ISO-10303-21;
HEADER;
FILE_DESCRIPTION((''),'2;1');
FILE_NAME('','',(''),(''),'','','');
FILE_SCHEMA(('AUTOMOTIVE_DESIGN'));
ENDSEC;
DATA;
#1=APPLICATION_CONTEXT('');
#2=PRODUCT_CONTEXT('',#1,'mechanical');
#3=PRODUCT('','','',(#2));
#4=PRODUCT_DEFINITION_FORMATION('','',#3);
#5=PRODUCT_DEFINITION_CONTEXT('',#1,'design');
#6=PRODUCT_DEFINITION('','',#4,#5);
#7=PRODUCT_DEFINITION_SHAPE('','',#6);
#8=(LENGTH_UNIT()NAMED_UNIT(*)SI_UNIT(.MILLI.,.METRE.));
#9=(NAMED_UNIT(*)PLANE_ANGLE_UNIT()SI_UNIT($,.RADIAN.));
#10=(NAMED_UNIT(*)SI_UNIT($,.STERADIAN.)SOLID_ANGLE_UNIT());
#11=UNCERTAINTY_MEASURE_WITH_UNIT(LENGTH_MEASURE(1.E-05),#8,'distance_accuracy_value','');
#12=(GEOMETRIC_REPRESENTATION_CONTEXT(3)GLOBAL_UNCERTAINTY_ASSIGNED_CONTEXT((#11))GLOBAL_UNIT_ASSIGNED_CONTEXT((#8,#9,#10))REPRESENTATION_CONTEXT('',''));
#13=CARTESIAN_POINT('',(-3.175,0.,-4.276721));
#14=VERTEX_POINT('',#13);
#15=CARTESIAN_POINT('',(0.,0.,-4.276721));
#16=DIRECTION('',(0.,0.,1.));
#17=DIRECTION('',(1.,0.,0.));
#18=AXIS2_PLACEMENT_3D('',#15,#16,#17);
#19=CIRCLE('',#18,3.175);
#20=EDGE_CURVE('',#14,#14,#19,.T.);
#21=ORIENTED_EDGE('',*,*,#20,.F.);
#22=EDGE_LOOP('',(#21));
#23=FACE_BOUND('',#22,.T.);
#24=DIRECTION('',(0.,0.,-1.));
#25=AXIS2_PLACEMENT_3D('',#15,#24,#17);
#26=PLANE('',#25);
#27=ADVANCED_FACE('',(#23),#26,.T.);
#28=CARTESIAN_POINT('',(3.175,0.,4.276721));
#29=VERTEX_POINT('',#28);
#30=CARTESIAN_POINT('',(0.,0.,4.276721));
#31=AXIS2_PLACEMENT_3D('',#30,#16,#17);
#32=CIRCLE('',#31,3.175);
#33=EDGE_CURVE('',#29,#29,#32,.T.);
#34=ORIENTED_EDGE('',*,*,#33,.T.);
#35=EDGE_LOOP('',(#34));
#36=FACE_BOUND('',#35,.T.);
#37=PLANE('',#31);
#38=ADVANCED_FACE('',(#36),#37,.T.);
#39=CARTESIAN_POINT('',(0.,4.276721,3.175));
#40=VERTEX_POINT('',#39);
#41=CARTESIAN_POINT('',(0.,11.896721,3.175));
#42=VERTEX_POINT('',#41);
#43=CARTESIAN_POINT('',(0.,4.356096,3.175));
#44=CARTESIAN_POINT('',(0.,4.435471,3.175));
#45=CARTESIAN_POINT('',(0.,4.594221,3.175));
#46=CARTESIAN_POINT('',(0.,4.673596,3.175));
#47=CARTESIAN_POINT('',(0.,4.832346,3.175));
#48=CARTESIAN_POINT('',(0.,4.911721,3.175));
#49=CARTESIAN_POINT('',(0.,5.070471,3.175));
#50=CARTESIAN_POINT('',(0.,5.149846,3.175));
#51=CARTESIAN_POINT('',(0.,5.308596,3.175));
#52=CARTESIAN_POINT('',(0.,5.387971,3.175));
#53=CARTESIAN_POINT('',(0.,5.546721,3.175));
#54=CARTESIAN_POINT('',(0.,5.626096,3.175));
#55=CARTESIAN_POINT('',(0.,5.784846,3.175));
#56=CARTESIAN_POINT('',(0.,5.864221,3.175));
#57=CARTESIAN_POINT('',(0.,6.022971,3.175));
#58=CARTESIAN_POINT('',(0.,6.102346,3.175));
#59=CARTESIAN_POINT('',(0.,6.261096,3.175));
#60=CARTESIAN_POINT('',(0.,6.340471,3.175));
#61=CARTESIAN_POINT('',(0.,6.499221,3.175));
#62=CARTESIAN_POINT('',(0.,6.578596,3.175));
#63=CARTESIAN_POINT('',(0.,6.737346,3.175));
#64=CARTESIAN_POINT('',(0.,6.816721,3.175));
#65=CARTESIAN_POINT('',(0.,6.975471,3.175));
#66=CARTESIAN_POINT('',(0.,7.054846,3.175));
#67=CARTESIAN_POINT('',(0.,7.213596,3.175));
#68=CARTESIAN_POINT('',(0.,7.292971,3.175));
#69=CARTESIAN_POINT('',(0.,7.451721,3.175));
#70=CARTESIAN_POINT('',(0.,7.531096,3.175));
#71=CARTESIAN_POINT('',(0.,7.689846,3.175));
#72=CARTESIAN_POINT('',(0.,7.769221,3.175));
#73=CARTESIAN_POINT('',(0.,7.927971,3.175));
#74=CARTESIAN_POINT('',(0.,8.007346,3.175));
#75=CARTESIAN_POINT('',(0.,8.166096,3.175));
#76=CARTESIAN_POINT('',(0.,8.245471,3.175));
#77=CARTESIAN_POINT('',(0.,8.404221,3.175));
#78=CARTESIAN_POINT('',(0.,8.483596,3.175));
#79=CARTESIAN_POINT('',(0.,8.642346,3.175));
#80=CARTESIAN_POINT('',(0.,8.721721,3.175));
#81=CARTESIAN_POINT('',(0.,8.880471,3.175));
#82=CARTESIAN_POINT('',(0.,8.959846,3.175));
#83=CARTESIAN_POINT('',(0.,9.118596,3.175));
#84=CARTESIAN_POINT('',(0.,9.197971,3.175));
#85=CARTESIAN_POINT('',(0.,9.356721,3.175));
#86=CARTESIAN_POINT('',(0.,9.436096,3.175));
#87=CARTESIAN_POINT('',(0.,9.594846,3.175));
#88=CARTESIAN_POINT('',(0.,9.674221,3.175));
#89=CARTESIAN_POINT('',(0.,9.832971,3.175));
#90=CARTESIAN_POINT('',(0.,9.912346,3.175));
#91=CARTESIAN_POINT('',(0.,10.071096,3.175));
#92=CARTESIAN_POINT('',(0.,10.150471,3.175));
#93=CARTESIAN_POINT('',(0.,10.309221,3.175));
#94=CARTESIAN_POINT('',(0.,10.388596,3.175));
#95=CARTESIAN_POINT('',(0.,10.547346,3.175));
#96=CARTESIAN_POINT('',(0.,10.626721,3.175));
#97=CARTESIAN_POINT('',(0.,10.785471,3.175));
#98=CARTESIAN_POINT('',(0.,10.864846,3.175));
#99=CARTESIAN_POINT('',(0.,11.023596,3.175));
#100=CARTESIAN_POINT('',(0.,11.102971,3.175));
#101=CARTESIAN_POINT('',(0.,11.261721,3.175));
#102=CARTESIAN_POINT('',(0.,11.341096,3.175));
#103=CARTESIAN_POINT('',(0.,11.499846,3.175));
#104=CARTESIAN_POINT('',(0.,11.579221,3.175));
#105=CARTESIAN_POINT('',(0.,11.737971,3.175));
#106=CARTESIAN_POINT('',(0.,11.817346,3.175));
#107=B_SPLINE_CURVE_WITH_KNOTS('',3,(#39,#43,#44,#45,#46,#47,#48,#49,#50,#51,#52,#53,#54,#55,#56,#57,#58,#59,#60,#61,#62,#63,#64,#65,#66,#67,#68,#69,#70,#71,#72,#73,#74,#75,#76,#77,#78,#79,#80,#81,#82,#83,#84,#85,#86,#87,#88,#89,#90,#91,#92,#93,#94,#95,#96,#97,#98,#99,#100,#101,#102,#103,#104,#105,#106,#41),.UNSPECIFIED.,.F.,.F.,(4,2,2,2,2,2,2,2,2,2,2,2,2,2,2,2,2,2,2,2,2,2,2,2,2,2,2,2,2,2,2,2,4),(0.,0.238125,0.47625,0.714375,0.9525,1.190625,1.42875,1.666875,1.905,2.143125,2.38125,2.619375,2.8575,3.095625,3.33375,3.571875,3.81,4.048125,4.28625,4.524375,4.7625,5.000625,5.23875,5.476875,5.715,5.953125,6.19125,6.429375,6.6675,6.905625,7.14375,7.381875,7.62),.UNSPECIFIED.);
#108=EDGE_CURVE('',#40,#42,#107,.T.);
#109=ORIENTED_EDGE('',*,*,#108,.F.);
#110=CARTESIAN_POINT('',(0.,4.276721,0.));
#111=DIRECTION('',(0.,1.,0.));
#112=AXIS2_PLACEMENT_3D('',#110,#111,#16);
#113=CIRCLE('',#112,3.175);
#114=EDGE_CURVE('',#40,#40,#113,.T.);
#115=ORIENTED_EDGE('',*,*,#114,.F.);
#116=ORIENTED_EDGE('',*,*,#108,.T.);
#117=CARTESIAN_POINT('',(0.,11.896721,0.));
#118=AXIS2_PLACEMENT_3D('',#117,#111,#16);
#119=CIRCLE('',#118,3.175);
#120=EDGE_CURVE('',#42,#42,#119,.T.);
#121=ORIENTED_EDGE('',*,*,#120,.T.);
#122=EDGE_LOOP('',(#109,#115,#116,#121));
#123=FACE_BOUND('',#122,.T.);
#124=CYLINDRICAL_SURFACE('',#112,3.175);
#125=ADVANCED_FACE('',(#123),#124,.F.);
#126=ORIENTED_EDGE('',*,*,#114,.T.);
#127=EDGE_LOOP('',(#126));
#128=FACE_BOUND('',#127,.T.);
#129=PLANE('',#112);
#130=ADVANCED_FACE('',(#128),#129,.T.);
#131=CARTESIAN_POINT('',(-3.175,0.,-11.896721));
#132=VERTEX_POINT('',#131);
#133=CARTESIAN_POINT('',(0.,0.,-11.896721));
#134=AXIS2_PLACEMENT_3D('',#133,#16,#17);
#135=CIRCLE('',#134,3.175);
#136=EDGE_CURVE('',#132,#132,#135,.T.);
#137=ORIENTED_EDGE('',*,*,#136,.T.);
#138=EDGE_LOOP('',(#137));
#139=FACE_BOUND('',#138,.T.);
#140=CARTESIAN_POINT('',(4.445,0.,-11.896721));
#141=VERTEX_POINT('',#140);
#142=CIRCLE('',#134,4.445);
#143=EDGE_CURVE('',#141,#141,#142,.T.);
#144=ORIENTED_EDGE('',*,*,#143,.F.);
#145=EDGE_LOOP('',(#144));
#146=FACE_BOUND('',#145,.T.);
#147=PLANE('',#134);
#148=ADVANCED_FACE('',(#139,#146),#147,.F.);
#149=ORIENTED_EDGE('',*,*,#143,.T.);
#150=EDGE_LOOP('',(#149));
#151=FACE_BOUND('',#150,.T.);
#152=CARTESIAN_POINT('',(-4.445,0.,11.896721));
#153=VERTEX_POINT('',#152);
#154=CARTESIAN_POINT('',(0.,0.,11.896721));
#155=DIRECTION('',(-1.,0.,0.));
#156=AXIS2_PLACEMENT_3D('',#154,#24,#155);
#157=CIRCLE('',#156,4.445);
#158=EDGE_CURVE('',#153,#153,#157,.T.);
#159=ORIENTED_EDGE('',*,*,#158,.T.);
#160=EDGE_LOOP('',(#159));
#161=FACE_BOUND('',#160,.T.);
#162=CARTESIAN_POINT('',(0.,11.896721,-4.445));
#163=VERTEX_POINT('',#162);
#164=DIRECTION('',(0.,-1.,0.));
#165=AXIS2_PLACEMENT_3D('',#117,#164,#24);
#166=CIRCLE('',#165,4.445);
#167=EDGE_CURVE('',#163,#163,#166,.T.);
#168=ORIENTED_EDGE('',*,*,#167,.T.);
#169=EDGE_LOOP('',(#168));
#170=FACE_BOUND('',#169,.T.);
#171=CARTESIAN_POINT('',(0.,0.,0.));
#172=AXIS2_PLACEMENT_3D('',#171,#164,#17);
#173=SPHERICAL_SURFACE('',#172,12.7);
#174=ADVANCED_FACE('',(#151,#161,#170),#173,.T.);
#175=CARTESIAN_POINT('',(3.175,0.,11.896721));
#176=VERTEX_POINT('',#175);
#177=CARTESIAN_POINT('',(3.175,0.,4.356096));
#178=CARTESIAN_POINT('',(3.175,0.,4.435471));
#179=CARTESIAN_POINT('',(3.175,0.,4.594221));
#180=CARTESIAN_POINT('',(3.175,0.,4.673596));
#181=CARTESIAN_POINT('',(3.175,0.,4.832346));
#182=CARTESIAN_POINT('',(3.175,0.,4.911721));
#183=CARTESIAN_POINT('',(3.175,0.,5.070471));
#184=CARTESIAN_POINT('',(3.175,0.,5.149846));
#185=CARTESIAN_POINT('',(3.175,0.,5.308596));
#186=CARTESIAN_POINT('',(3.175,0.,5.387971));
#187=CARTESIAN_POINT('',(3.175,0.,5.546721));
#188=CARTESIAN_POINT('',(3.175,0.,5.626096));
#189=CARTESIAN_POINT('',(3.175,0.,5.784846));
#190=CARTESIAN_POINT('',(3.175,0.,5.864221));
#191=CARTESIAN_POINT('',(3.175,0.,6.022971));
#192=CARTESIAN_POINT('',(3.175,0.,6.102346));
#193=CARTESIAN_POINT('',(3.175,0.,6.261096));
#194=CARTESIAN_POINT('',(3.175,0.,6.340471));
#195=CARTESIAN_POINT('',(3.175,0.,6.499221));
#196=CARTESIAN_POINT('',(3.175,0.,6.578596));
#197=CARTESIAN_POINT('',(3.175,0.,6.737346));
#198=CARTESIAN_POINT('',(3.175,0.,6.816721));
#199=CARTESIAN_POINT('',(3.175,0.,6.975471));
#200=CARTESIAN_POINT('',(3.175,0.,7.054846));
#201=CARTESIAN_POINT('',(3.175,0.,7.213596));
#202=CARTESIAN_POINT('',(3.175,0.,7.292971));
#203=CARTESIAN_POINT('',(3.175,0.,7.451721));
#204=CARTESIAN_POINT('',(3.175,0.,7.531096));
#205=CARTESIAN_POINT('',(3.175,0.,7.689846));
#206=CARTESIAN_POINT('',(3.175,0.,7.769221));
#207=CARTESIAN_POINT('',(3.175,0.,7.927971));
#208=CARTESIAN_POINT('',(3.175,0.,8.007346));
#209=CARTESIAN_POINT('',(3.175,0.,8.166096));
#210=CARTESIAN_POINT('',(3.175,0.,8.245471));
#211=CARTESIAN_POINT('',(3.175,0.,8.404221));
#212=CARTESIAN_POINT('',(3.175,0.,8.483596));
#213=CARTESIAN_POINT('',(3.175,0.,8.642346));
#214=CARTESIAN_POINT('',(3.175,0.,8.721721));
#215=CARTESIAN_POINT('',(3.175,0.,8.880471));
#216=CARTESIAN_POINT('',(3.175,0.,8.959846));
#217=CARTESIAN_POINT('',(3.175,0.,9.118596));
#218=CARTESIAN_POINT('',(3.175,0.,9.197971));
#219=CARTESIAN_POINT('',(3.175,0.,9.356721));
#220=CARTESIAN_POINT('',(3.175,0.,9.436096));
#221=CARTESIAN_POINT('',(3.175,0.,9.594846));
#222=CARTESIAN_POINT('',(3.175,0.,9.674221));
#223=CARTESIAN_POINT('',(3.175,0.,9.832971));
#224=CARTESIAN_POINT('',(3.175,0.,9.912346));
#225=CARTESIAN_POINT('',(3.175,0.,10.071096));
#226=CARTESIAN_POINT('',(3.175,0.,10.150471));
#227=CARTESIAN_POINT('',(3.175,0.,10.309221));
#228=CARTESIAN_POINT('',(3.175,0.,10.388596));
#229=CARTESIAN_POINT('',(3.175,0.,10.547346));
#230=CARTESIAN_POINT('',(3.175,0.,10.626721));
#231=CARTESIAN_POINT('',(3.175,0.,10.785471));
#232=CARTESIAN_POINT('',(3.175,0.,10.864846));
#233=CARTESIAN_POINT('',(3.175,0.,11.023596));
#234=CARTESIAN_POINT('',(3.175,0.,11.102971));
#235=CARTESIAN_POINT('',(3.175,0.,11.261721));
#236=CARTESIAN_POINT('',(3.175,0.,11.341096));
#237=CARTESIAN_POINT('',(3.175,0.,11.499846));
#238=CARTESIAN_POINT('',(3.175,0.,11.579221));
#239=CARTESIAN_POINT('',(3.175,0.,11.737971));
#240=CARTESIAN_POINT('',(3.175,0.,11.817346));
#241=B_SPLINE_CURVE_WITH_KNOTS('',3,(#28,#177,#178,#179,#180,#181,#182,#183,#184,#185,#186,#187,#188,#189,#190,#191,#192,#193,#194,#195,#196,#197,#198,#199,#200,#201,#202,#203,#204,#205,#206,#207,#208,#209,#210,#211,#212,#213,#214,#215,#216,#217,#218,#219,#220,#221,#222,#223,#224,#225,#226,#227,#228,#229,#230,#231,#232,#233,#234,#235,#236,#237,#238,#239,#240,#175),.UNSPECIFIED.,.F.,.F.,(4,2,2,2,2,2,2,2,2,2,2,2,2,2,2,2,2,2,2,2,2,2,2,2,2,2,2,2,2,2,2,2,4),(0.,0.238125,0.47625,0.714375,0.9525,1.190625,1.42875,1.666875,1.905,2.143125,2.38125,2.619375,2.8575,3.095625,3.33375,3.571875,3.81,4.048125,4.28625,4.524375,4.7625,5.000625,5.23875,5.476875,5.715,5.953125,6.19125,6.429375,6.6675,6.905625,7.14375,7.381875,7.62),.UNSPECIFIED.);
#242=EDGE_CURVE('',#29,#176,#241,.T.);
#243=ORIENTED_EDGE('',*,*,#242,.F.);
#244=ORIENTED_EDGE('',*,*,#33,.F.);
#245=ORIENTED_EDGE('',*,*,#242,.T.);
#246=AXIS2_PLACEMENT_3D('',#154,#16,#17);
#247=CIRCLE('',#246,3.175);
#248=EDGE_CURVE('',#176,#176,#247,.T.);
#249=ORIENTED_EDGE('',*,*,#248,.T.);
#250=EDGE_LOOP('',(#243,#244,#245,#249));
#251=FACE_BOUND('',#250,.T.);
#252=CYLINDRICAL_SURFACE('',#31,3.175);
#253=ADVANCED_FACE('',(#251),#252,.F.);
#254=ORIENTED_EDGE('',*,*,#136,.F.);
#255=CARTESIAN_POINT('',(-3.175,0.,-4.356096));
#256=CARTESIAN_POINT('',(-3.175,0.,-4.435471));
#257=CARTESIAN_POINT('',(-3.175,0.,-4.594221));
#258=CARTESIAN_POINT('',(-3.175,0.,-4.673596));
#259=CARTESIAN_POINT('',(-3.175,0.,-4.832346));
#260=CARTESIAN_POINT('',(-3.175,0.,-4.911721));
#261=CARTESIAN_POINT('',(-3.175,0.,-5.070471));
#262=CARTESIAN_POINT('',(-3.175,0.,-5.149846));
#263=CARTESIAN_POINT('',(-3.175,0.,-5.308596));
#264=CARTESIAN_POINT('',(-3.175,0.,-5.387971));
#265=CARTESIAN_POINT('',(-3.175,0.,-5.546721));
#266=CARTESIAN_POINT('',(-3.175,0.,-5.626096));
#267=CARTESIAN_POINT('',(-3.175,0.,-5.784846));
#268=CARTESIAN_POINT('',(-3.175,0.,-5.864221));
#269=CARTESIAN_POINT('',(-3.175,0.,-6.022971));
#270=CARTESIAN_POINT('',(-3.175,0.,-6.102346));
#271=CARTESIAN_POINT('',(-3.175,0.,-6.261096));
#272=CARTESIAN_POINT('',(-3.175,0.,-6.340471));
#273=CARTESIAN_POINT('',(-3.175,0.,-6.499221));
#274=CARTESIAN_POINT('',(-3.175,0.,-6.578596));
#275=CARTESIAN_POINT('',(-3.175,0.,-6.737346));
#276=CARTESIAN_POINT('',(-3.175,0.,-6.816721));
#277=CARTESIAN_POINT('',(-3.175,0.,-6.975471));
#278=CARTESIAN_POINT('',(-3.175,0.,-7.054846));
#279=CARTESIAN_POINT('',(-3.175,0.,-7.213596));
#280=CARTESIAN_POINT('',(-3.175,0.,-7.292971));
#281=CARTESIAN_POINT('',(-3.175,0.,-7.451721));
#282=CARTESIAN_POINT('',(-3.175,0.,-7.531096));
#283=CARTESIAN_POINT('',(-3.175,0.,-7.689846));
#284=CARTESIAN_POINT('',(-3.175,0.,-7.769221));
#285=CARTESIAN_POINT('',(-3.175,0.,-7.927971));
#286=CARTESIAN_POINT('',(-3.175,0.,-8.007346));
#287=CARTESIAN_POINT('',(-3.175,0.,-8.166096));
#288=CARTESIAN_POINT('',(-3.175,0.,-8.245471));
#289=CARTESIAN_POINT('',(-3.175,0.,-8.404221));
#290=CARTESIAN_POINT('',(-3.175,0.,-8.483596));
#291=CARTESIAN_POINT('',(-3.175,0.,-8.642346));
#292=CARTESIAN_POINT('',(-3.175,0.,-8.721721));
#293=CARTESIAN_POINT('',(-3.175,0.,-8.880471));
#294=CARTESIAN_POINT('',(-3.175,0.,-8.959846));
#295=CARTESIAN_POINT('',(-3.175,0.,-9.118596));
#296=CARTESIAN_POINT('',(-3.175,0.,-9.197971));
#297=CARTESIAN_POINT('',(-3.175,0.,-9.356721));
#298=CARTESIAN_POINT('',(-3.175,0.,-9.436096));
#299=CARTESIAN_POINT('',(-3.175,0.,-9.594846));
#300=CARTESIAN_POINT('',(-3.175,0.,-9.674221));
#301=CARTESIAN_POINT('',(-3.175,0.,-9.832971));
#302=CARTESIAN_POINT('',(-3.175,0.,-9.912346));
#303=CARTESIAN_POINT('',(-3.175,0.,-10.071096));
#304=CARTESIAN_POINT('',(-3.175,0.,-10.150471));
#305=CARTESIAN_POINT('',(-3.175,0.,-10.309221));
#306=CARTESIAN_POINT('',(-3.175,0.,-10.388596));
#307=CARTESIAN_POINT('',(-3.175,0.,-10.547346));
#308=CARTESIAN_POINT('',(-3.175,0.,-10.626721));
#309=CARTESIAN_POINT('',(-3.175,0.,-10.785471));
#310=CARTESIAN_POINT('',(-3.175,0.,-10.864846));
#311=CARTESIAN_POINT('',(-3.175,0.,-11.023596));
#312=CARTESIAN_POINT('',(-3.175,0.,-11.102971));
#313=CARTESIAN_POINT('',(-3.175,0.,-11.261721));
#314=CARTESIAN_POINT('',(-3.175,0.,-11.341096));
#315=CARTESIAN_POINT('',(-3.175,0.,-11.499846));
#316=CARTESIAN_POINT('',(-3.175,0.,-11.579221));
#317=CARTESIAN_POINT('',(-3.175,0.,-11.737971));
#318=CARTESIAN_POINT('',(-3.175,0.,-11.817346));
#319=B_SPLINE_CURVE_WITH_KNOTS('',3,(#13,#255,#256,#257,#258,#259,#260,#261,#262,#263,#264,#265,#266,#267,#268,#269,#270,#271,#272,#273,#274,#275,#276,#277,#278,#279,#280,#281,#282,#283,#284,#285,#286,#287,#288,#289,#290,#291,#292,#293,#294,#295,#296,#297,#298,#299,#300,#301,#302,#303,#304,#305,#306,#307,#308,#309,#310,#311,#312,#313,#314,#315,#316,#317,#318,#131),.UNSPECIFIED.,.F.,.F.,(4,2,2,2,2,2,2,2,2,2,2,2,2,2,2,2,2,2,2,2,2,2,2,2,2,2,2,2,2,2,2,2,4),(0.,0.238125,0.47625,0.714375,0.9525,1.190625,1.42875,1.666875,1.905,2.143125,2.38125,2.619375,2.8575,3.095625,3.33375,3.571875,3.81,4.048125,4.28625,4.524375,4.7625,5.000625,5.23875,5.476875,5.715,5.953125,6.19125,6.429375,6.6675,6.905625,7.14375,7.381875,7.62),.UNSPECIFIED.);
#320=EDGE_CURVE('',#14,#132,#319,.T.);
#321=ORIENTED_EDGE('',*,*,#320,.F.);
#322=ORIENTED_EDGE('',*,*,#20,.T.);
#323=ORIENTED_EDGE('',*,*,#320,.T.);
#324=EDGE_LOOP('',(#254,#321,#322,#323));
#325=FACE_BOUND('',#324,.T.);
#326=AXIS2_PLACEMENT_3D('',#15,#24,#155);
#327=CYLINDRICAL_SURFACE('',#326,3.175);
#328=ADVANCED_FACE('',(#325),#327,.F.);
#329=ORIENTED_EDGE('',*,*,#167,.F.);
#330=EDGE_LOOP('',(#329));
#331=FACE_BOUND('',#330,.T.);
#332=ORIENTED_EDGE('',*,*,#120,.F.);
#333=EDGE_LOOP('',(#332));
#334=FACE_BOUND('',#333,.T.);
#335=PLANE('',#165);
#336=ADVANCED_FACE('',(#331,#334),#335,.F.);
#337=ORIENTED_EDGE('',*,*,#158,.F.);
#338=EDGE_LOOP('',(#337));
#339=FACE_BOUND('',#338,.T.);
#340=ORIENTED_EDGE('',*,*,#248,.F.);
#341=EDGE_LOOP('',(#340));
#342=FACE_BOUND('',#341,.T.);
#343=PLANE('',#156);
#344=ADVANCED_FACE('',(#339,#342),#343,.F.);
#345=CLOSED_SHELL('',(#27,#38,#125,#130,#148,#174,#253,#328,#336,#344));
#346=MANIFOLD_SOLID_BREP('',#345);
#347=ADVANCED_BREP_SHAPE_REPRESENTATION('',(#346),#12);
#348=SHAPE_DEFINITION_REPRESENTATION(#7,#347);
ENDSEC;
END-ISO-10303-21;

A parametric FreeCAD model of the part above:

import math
import FreeCAD as App
import Part
import Sketcher
from FreeCAD import Vector
Q = App.Units.Quantity

doc = App.newDocument("Part")
body = doc.addObject("PartDesign::Body", "Body")

# Sketch on XY plane
sketch1 = body.newObject("Sketcher::SketchObject", "Sketch")
sketch1.AttachmentSupport = (doc.getObject("XY_Plane"), [""])
sketch1.MapMode = "FlatFace"
sketch1.addGeometry([
    Part.LineSegment(Vector(0, 13, 0), Vector(0, -13, 0)),
    Part.ArcOfCircle(Part.Circle(Vector(0, 0, 0), Vector(0, 0, 1), 13), math.radians(-90), math.radians(90)),
], False)
sketch1.addConstraint([
    Sketcher.Constraint("Coincident", 0, 1, 1, 2),
    Sketcher.Constraint("Coincident", 1, 1, 0, 2),
    Sketcher.Constraint("Vertical", 0),
    Sketcher.Constraint("Coincident", 1, 3, -1, 1),
    Sketcher.Constraint("PointOnObject", 0, 1, -2),
    Sketcher.Constraint("Radius", 1, Q("0.5 in")),
])
revolution = body.newObject("PartDesign::Revolution", "Revolution")
revolution.Profile = sketch1
revolution.ReferenceAxis = (sketch1, ["V_Axis"])
revolution.Angle = 360

# Sketch on XY plane
sketch2 = body.newObject("Sketcher::SketchObject", "Sketch001")
sketch2.AttachmentSupport = (doc.getObject("XY_Plane"), [""])
sketch2.MapMode = "FlatFace"
sketch2.AttachmentOffset = App.Placement(Vector(0, 0, 11.896721), App.Rotation())
sketch2.addGeometry(Part.Circle(Vector(0, 0, 0), Vector(0, 0, 1), 4.4), False)
sketch2.addConstraint([
    Sketcher.Constraint("Coincident", 0, 3, -1, 1),
    Sketcher.Constraint("Diameter", 0, Q("0.35 in")),
])
pocket1 = body.newObject("PartDesign::Pocket", "Pocket")
pocket1.Profile = sketch2
pocket1.Length = Q("0.1 in")
pocket1.Reversed = True

# Sketch on XY plane
sketch3 = body.newObject("Sketcher::SketchObject", "Sketch002")
sketch3.AttachmentSupport = (doc.getObject("XY_Plane"), [""])
sketch3.MapMode = "FlatFace"
sketch3.AttachmentOffset = App.Placement(Vector(0, 0, 11.896721), App.Rotation())
sketch3.addGeometry(Part.Circle(Vector(0, 0, 0), Vector(0, 0, 1), 3.2), False)
sketch3.addConstraint([
    Sketcher.Constraint("Coincident", 0, 3, -1, 1),
    Sketcher.Constraint("Diameter", 0, Q("0.25 in")),
])
pocket2 = body.newObject("PartDesign::Pocket", "Pocket001")
pocket2.Profile = sketch3
pocket2.Length = Q("0.3 in")
doc.recompute()

mirrored = body.newObject("PartDesign::Mirrored", "Mirrored")
mirrored.Originals = [pocket1, pocket2]
mirrored.MirrorPlane = (doc.getObject("XY_Plane"), [""])
body.Tip = mirrored

# Sketch on XZ plane
sketch4 = body.newObject("Sketcher::SketchObject", "Sketch003")
sketch4.AttachmentSupport = (doc.getObject("XZ_Plane"), [""])
sketch4.MapMode = "FlatFace"
sketch4.AttachmentOffset = App.Placement(Vector(0, 0, -11.896721), App.Rotation())
sketch4.addGeometry(Part.Circle(Vector(0, 0, 0), Vector(0, 0, 1), 4.4), False)
sketch4.addConstraint([
    Sketcher.Constraint("Coincident", 0, 3, -1, 1),
    Sketcher.Constraint("Diameter", 0, Q("0.35 in")),
])
pocket3 = body.newObject("PartDesign::Pocket", "Pocket002")
pocket3.Profile = sketch4
pocket3.Length = Q("0.3 in")

# Sketch on XZ plane
sketch5 = body.newObject("Sketcher::SketchObject", "Sketch004")
sketch5.AttachmentSupport = (doc.getObject("XZ_Plane"), [""])
sketch5.MapMode = "FlatFace"
sketch5.AttachmentOffset = App.Placement(Vector(0, 0, -11.896721), App.Rotation())
sketch5.addGeometry(Part.Circle(Vector(0, 0, 0), Vector(0, 0, 1), 3.2), False)
sketch5.addConstraint([
    Sketcher.Constraint("Coincident", 0, 3, -1, 1),
    Sketcher.Constraint("Diameter", 0, Q("0.25 in")),
])
pocket4 = body.newObject("PartDesign::Pocket", "Pocket003")
pocket4.Profile = sketch5
pocket4.Length = Q("0.3 in")
pocket4.Reversed = True

doc.recompute()
